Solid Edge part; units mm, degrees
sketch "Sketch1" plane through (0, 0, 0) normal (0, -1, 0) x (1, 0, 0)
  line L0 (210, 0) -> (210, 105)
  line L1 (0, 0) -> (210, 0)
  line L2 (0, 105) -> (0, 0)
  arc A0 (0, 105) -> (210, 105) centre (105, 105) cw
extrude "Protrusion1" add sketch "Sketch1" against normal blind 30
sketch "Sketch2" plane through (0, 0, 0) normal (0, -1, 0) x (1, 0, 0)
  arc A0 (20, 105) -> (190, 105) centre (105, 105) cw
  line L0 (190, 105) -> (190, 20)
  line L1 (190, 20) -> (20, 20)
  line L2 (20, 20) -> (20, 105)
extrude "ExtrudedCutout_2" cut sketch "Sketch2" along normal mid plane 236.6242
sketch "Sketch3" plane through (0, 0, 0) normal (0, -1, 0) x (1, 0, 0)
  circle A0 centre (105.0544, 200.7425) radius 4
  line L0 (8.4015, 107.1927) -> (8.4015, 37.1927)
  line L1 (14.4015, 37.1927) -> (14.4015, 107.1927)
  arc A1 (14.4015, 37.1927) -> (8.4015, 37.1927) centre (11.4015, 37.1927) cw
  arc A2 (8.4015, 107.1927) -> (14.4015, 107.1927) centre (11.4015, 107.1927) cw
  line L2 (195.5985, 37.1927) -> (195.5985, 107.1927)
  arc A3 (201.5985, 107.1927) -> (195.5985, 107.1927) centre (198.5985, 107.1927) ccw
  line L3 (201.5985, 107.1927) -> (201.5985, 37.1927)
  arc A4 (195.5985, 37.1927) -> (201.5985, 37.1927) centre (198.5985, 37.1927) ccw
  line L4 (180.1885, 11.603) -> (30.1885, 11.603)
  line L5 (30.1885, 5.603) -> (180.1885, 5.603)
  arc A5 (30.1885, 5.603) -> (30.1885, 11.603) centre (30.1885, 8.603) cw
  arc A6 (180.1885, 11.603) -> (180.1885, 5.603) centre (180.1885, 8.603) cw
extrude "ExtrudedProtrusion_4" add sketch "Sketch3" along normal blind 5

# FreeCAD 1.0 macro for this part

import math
import FreeCAD as App
import Part
import Sketcher
from FreeCAD import Vector
Q = App.Units.Quantity

doc = App.newDocument("Part")
body = doc.addObject("PartDesign::Body", "Body")

# Sketch on XZ plane
sketch1 = doc.addObject("Sketcher::SketchObject", "Sketch")
body.addObject(sketch1)
sketch1.AttachmentSupport = (doc.XZ_Plane, [""])
sketch1.MapMode = "FlatFace"
sketch1.addGeometry(Part.LineSegment(Vector(0, 0, 0), Vector(210, 0, 0)), False)
sketch1.addGeometry(Part.LineSegment(Vector(210, 0, 0), Vector(210, 105, 0)), False)
sketch1.addGeometry(Part.ArcOfCircle(Part.Circle(Vector(105, 105, 0), Vector(0, 0, 1), 105), math.radians(0), math.radians(180)), False)
sketch1.addGeometry(Part.LineSegment(Vector(0, 105, 0), Vector(0, 0, 0)), False)
sketch1.addConstraint(Sketcher.Constraint("Coincident", 0, 2, 1, 1))
sketch1.addConstraint(Sketcher.Constraint("Tangent", 1, 2, 2, 1))
sketch1.addConstraint(Sketcher.Constraint("Tangent", 2, 2, 3, 1))
sketch1.addConstraint(Sketcher.Constraint("Coincident", 3, 2, 0, 1))
sketch1.addConstraint(Sketcher.Constraint("Horizontal", 0))
sketch1.addConstraint(Sketcher.Constraint("Vertical", 1))
sketch1.addConstraint(Sketcher.Constraint("Vertical", 3))
sketch1.addConstraint(Sketcher.Constraint("Coincident", 3, 2, -1, 1))
sketch1.addConstraint(Sketcher.Constraint("Radius", 2, Q("105 mm")))
sketch1.addConstraint(Sketcher.Constraint("DistanceY", 1, 1, 1, 2, Q("105 mm")))
pad1 = doc.addObject("PartDesign::Pad", "Pad")
body.addObject(pad1)
pad1.Profile = sketch1
pad1.Length = 30
pad1.Reversed = True

# Sketch on XZ plane
sketch2 = doc.addObject("Sketcher::SketchObject", "Sketch001")
body.addObject(sketch2)
sketch2.AttachmentSupport = (doc.XZ_Plane, [""])
sketch2.MapMode = "FlatFace"
sketch2.addGeometry(Part.ArcOfCircle(Part.Circle(Vector(105, 105, 0), Vector(0, 0, 1), 85), math.radians(0), math.radians(180)), False)
sketch2.addGeometry(Part.LineSegment(Vector(20, 105, 0), Vector(20, 20, 0)), False)
sketch2.addGeometry(Part.LineSegment(Vector(20, 20, 0), Vector(190, 20, 0)), False)
sketch2.addGeometry(Part.LineSegment(Vector(190, 20, 0), Vector(190, 105, 0)), False)
sketch2.addConstraint(Sketcher.Constraint("Tangent", 0, 2, 1, 1))
sketch2.addConstraint(Sketcher.Constraint("Coincident", 1, 2, 2, 1))
sketch2.addConstraint(Sketcher.Constraint("Coincident", 2, 2, 3, 1))
sketch2.addConstraint(Sketcher.Constraint("Tangent", 3, 2, 0, 1))
sketch2.addConstraint(Sketcher.Constraint("Vertical", 1))
sketch2.addConstraint(Sketcher.Constraint("Horizontal", 2))
sketch2.addConstraint(Sketcher.Constraint("Vertical", 3))
sketch2.addConstraint(Sketcher.Constraint("Radius", 0, Q("85 mm")))
sketch2.addConstraint(Sketcher.Constraint("DistanceY", 1, 2, 1, 1, Q("85 mm")))
sketch2.addConstraint(Sketcher.Constraint("DistanceX", -1, 1, 0, 3, Q("105 mm")))
sketch2.addConstraint(Sketcher.Constraint("DistanceY", -1, 1, 0, 3, Q("105 mm")))
pocket1 = doc.addObject("PartDesign::Pocket", "Pocket")
body.addObject(pocket1)
pocket1.Profile = sketch2
pocket1.Length = 236.6242
pocket1.Midplane = True

# Sketch on XZ plane
sketch3 = doc.addObject("Sketcher::SketchObject", "Sketch002")
body.addObject(sketch3)
sketch3.AttachmentSupport = (doc.XZ_Plane, [""])
sketch3.MapMode = "FlatFace"
sketch3.addGeometry(Part.Circle(Vector(105.1, 200.7, 0), Vector(0, 0, 1), 4), False)
sketch3.addGeometry(Part.ArcOfCircle(Part.Circle(Vector(11.4, 107.2, 0), Vector(0, 0, 1), 3), math.radians(0), math.radians(180)), False)
sketch3.addGeometry(Part.LineSegment(Vector(8.4, 107.2, 0), Vector(8.4, 37.2, 0)), False)
sketch3.addGeometry(Part.ArcOfCircle(Part.Circle(Vector(11.4, 37.2, 0), Vector(0, 0, 1), 3), math.radians(180), math.radians(360)), False)
sketch3.addGeometry(Part.LineSegment(Vector(14.4, 37.2, 0), Vector(14.4, 107.2, 0)), False)
sketch3.addGeometry(Part.LineSegment(Vector(195.6, 107.2, 0), Vector(195.6, 37.2, 0)), False)
sketch3.addGeometry(Part.ArcOfCircle(Part.Circle(Vector(198.6, 37.2, 0), Vector(0, 0, 1), 3), math.radians(180), math.radians(360)), False)
sketch3.addGeometry(Part.LineSegment(Vector(201.6, 37.2, 0), Vector(201.6, 107.2, 0)), False)
sketch3.addGeometry(Part.ArcOfCircle(Part.Circle(Vector(198.6, 107.2, 0), Vector(0, 0, 1), 3), math.radians(0), math.radians(180)), False)
sketch3.addGeometry(Part.ArcOfCircle(Part.Circle(Vector(180.2, 8.6, 0), Vector(0, 0, 1), 3), math.radians(-90), math.radians(90)), False)
sketch3.addGeometry(Part.LineSegment(Vector(180.2, 11.6, 0), Vector(30.2, 11.6, 0)), False)
sketch3.addGeometry(Part.ArcOfCircle(Part.Circle(Vector(30.2, 8.6, 0), Vector(0, 0, 1), 3), math.radians(90), math.radians(270)), False)
sketch3.addGeometry(Part.LineSegment(Vector(30.2, 5.6, 0), Vector(180.2, 5.6, 0)), False)
sketch3.addConstraint(Sketcher.Constraint("Tangent", 1, 2, 2, 1))
sketch3.addConstraint(Sketcher.Constraint("Tangent", 2, 2, 3, 1))
sketch3.addConstraint(Sketcher.Constraint("Tangent", 3, 2, 4, 1))
sketch3.addConstraint(Sketcher.Constraint("Tangent", 4, 2, 1, 1))
sketch3.addConstraint(Sketcher.Constraint("Tangent", 5, 2, 6, 1))
sketch3.addConstraint(Sketcher.Constraint("Tangent", 6, 2, 7, 1))
sketch3.addConstraint(Sketcher.Constraint("Tangent", 7, 2, 8, 1))
sketch3.addConstraint(Sketcher.Constraint("Tangent", 8, 2, 5, 1))
sketch3.addConstraint(Sketcher.Constraint("Tangent", 9, 2, 10, 1))
sketch3.addConstraint(Sketcher.Constraint("Tangent", 10, 2, 11, 1))
sketch3.addConstraint(Sketcher.Constraint("Tangent", 11, 2, 12, 1))
sketch3.addConstraint(Sketcher.Constraint("Tangent", 12, 2, 9, 1))
sketch3.addConstraint(Sketcher.Constraint("Vertical", 2))
sketch3.addConstraint(Sketcher.Constraint("Vertical", 4))
sketch3.addConstraint(Sketcher.Constraint("Vertical", 5))
sketch3.addConstraint(Sketcher.Constraint("Vertical", 7))
sketch3.addConstraint(Sketcher.Constraint("Horizontal", 10))
sketch3.addConstraint(Sketcher.Constraint("Horizontal", 12))
sketch3.addConstraint(Sketcher.Constraint("Equal", 3, 6))
sketch3.addConstraint(Sketcher.Constraint("Equal", 8, 9))
sketch3.addConstraint(Sketcher.Constraint("Horizontal", 3, 3, 6, 3))
sketch3.addConstraint(Sketcher.Constraint("Horizontal", 1, 3, 8, 3))
sketch3.addConstraint(Sketcher.Constraint("Diameter", 0, Q("8 mm")))
sketch3.addConstraint(Sketcher.Constraint("Radius", 1, Q("3 mm")))
sketch3.addConstraint(Sketcher.Constraint("DistanceX", 10, 2, 10, 1, Q("150 mm")))
sketch3.addConstraint(Sketcher.Constraint("DistanceY", 2, 2, 2, 1, Q("70 mm")))
sketch3.addConstraint(Sketcher.Constraint("DistanceX", 9, 3, 6, 3, Q("18.41 mm")))
sketch3.addConstraint(Sketcher.Constraint("DistanceY", -1, 1, 9, 3, Q("8.603 mm")))
sketch3.addConstraint(Sketcher.Constraint("DistanceX", 1, 3, 0, 3, Q("93.653 mm")))
sketch3.addConstraint(Sketcher.Constraint("DistanceX", 3, 3, 6, 3, Q("187.197 mm")))
sketch3.addConstraint(Sketcher.Constraint("DistanceX", -1, 1, 0, 3, Q("105.0544 mm")))
sketch3.addConstraint(Sketcher.Constraint("DistanceY", -1, 1, 0, 3, Q("200.7425 mm")))
sketch3.addConstraint(Sketcher.Constraint("DistanceY", -1, 1, 1, 3, Q("107.1927 mm")))
pad2 = doc.addObject("PartDesign::Pad", "Pad001")
body.addObject(pad2)
pad2.Profile = sketch3
pad2.Length = 5

doc.recompute()
